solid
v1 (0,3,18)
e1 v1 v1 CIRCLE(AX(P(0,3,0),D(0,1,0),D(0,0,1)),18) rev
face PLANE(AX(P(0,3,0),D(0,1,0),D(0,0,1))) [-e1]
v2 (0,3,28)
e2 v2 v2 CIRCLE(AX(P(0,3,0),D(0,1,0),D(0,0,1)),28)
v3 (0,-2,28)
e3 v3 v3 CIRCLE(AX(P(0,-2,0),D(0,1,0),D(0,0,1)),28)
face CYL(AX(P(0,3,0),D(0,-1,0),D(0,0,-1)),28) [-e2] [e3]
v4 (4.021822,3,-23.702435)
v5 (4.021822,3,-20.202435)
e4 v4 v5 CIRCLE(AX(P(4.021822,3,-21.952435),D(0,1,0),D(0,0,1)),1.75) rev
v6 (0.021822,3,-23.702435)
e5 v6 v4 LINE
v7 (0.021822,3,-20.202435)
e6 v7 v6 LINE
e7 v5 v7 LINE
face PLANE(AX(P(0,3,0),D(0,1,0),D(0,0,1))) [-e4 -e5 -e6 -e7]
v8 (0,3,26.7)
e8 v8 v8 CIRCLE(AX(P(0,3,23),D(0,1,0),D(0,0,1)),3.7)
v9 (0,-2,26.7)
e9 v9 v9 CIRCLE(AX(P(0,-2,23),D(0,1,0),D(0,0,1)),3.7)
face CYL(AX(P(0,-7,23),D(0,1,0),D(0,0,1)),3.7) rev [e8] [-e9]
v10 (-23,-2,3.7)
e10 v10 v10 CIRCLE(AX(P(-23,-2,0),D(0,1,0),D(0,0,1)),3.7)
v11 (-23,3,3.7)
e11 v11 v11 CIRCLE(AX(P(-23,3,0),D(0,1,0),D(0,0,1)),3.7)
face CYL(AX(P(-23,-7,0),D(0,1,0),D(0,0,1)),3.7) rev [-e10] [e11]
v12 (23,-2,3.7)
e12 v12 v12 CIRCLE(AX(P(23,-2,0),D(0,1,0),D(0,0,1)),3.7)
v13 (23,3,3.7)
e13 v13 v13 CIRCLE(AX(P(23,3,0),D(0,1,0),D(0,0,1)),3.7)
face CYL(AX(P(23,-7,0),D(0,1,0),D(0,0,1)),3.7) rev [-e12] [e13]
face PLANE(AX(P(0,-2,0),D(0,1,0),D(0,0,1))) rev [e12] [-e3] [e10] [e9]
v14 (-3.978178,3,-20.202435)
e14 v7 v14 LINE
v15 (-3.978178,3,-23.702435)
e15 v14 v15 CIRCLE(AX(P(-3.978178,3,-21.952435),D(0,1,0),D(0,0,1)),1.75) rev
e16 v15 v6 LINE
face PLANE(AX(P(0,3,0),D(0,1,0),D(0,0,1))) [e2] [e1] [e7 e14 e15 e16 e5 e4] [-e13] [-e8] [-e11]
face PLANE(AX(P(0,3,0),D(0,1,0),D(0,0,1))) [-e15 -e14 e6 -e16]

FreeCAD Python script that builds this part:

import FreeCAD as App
import Part
import Sketcher
Q = App.Units.Quantity

doc = App.newDocument("Part")
params = doc.addObject("Spreadsheet::Sheet", "Params")
for row, (alias, value) in enumerate([
    ("sketch1_diameter", "56 mm"),
    ("pad1_length", "3 mm"),
    ("sketch2_diameter", "7.4 mm"),
    ("pocket1_length", "10 mm"),
    ("sketch3_diameter", "7.4 mm"),
    ("pocket2_length", "10 mm"),
    ("sketch4_diameter", "7.4 mm"),
    ("pocket3_length", "10 mm"),
    ("sketch5_diameter", "56 mm"),
    ("pad2_length", "2 mm"),
    ("sketch6_diameter", "7.4 mm"),
    ("pocket4_length", "5 mm"),
    ("sketch7_diameter", "7.4 mm"),
    ("pocket5_length", "5 mm"),
    ("sketch8_diameter", "7.4 mm"),
    ("pocket6_length", "5 mm"),
], start=1):
    params.set(f"A{row}", alias)
    params.set(f"B{row}", "=" + value)
    params.setAlias(f"B{row}", alias)

body = doc.addObject("PartDesign::Body", "Body")

sketch1 = body.newObject("Sketcher::SketchObject", "Sketch")
sketch1.AttachmentSupport = (doc.getObject("XZ_Plane"), [""])
sketch1.MapMode = "FlatFace"
sketch1.addGeometry(Part.Circle(App.Vector(0, 0, 0), App.Vector(0, 0, 1), 28), False)
sketch1.addConstraint([
    Sketcher.Constraint("Coincident", 0, 3, -1, 1),
    Sketcher.Constraint("Diameter", 0, Q("56 mm")),
])
sketch1.setExpression("Constraints[1]", "Params.sketch1_diameter")
pad1 = body.newObject("PartDesign::Pad", "Pad")
pad1.Profile = sketch1
pad1.setExpression("Length", "Params.pad1_length")
pad1.Reversed = True

sketch2 = body.newObject("Sketcher::SketchObject", "Sketch001")
sketch2.AttachmentSupport = (doc.getObject("XZ_Plane"), [""])
sketch2.MapMode = "FlatFace"
sketch2.AttachmentOffset = App.Placement(App.Vector(0, 0, -3), App.Rotation())
sketch2.addGeometry(Part.Circle(App.Vector(23, 0, 0), App.Vector(0, 0, 1), 3.7), False)
sketch2.addConstraint([
    Sketcher.Constraint("PointOnObject", 0, 3, -1),
    Sketcher.Constraint("Diameter", 0, Q("7.4 mm")),
    Sketcher.Constraint("DistanceX", -1, 1, 0, 3, Q("23 mm")),
])
sketch2.setExpression("Constraints[1]", "Params.sketch2_diameter")
pocket1 = body.newObject("PartDesign::Pocket", "Pocket")
pocket1.Profile = sketch2
pocket1.setExpression("Length", "Params.pocket1_length")
pocket1.Reversed = True

sketch3 = body.newObject("Sketcher::SketchObject", "Sketch002")
sketch3.AttachmentSupport = (doc.getObject("XZ_Plane"), [""])
sketch3.MapMode = "FlatFace"
sketch3.AttachmentOffset = App.Placement(App.Vector(0, 0, -3), App.Rotation())
sketch3.addGeometry(Part.Circle(App.Vector(-23, 0, 0), App.Vector(0, 0, 1), 3.7), False)
sketch3.addConstraint([
    Sketcher.Constraint("PointOnObject", 0, 3, -1),
    Sketcher.Constraint("Diameter", 0, Q("7.4 mm")),
    Sketcher.Constraint("DistanceX", 0, 3, -1, 1, Q("23 mm")),
])
sketch3.setExpression("Constraints[1]", "Params.sketch3_diameter")
pocket2 = body.newObject("PartDesign::Pocket", "Pocket001")
pocket2.Profile = sketch3
pocket2.setExpression("Length", "Params.pocket2_length")
pocket2.Reversed = True

sketch4 = body.newObject("Sketcher::SketchObject", "Sketch003")
sketch4.AttachmentSupport = (doc.getObject("XZ_Plane"), [""])
sketch4.MapMode = "FlatFace"
sketch4.AttachmentOffset = App.Placement(App.Vector(0, 0, -3), App.Rotation())
sketch4.addGeometry(Part.Circle(App.Vector(0, 23, 0), App.Vector(0, 0, 1), 3.7), False)
sketch4.addConstraint([
    Sketcher.Constraint("PointOnObject", 0, 3, -2),
    Sketcher.Constraint("Diameter", 0, Q("7.4 mm")),
    Sketcher.Constraint("DistanceY", -1, 1, 0, 3, Q("23 mm")),
])
sketch4.setExpression("Constraints[1]", "Params.sketch4_diameter")
pocket3 = body.newObject("PartDesign::Pocket", "Pocket002")
pocket3.Profile = sketch4
pocket3.setExpression("Length", "Params.pocket3_length")
pocket3.Reversed = True

sketch5 = body.newObject("Sketcher::SketchObject", "Sketch004")
sketch5.AttachmentSupport = (doc.getObject("XZ_Plane"), [""])
sketch5.MapMode = "FlatFace"
sketch5.AttachmentOffset = App.Placement(App.Vector(0, 0, 2), App.Rotation())
sketch5.addGeometry(Part.Circle(App.Vector(0, 0, 0), App.Vector(0, 0, 1), 28), False)
sketch5.addConstraint([
    Sketcher.Constraint("Coincident", 0, 3, -1, 1),
    Sketcher.Constraint("Diameter", 0, Q("56 mm")),
])
sketch5.setExpression("Constraints[1]", "Params.sketch5_diameter")
pad2 = body.newObject("PartDesign::Pad", "Pad001")
pad2.Profile = sketch5
pad2.setExpression("Length", "Params.pad2_length")
pad2.Reversed = True

sketch6 = body.newObject("Sketcher::SketchObject", "Sketch005")
sketch6.AttachmentSupport = (doc.getObject("XZ_Plane"), [""])
sketch6.MapMode = "FlatFace"
sketch6.AttachmentOffset = App.Placement(App.Vector(0, 0, -3), App.Rotation())
sketch6.addGeometry(Part.Circle(App.Vector(0, 23, 0), App.Vector(0, 0, 1), 3.7), False)
sketch6.addConstraint([
    Sketcher.Constraint("PointOnObject", 0, 3, -2),
    Sketcher.Constraint("Diameter", 0, Q("7.4 mm")),
    Sketcher.Constraint("DistanceY", -1, 1, 0, 3, Q("23 mm")),
])
sketch6.setExpression("Constraints[1]", "Params.sketch6_diameter")
pocket4 = body.newObject("PartDesign::Pocket", "Pocket003")
pocket4.Profile = sketch6
pocket4.setExpression("Length", "Params.pocket4_length")
pocket4.Reversed = True

sketch7 = body.newObject("Sketcher::SketchObject", "Sketch006")
sketch7.AttachmentSupport = (doc.getObject("XZ_Plane"), [""])
sketch7.MapMode = "FlatFace"
sketch7.AttachmentOffset = App.Placement(App.Vector(0, 0, -3), App.Rotation())
sketch7.addGeometry(Part.Circle(App.Vector(-23, 0, 0), App.Vector(0, 0, 1), 3.7), False)
sketch7.addConstraint([
    Sketcher.Constraint("PointOnObject", 0, 3, -1),
    Sketcher.Constraint("Diameter", 0, Q("7.4 mm")),
    Sketcher.Constraint("DistanceX", 0, 3, -1, 1, Q("23 mm")),
])
sketch7.setExpression("Constraints[1]", "Params.sketch7_diameter")
pocket5 = body.newObject("PartDesign::Pocket", "Pocket004")
pocket5.Profile = sketch7
pocket5.setExpression("Length", "Params.pocket5_length")
pocket5.Reversed = True

sketch8 = body.newObject("Sketcher::SketchObject", "Sketch007")
sketch8.AttachmentSupport = (doc.getObject("XZ_Plane"), [""])
sketch8.MapMode = "FlatFace"
sketch8.AttachmentOffset = App.Placement(App.Vector(0, 0, -3), App.Rotation())
sketch8.addGeometry(Part.Circle(App.Vector(23, 0, 0), App.Vector(0, 0, 1), 3.7), False)
sketch8.addConstraint([
    Sketcher.Constraint("PointOnObject", 0, 3, -1),
    Sketcher.Constraint("Diameter", 0, Q("7.4 mm")),
    Sketcher.Constraint("DistanceX", -1, 1, 0, 3, Q("23 mm")),
])
sketch8.setExpression("Constraints[1]", "Params.sketch8_diameter")
pocket6 = body.newObject("PartDesign::Pocket", "Pocket005")
pocket6.Profile = sketch8
pocket6.setExpression("Length", "Params.pocket6_length")
pocket6.Reversed = True

doc.recompute()
